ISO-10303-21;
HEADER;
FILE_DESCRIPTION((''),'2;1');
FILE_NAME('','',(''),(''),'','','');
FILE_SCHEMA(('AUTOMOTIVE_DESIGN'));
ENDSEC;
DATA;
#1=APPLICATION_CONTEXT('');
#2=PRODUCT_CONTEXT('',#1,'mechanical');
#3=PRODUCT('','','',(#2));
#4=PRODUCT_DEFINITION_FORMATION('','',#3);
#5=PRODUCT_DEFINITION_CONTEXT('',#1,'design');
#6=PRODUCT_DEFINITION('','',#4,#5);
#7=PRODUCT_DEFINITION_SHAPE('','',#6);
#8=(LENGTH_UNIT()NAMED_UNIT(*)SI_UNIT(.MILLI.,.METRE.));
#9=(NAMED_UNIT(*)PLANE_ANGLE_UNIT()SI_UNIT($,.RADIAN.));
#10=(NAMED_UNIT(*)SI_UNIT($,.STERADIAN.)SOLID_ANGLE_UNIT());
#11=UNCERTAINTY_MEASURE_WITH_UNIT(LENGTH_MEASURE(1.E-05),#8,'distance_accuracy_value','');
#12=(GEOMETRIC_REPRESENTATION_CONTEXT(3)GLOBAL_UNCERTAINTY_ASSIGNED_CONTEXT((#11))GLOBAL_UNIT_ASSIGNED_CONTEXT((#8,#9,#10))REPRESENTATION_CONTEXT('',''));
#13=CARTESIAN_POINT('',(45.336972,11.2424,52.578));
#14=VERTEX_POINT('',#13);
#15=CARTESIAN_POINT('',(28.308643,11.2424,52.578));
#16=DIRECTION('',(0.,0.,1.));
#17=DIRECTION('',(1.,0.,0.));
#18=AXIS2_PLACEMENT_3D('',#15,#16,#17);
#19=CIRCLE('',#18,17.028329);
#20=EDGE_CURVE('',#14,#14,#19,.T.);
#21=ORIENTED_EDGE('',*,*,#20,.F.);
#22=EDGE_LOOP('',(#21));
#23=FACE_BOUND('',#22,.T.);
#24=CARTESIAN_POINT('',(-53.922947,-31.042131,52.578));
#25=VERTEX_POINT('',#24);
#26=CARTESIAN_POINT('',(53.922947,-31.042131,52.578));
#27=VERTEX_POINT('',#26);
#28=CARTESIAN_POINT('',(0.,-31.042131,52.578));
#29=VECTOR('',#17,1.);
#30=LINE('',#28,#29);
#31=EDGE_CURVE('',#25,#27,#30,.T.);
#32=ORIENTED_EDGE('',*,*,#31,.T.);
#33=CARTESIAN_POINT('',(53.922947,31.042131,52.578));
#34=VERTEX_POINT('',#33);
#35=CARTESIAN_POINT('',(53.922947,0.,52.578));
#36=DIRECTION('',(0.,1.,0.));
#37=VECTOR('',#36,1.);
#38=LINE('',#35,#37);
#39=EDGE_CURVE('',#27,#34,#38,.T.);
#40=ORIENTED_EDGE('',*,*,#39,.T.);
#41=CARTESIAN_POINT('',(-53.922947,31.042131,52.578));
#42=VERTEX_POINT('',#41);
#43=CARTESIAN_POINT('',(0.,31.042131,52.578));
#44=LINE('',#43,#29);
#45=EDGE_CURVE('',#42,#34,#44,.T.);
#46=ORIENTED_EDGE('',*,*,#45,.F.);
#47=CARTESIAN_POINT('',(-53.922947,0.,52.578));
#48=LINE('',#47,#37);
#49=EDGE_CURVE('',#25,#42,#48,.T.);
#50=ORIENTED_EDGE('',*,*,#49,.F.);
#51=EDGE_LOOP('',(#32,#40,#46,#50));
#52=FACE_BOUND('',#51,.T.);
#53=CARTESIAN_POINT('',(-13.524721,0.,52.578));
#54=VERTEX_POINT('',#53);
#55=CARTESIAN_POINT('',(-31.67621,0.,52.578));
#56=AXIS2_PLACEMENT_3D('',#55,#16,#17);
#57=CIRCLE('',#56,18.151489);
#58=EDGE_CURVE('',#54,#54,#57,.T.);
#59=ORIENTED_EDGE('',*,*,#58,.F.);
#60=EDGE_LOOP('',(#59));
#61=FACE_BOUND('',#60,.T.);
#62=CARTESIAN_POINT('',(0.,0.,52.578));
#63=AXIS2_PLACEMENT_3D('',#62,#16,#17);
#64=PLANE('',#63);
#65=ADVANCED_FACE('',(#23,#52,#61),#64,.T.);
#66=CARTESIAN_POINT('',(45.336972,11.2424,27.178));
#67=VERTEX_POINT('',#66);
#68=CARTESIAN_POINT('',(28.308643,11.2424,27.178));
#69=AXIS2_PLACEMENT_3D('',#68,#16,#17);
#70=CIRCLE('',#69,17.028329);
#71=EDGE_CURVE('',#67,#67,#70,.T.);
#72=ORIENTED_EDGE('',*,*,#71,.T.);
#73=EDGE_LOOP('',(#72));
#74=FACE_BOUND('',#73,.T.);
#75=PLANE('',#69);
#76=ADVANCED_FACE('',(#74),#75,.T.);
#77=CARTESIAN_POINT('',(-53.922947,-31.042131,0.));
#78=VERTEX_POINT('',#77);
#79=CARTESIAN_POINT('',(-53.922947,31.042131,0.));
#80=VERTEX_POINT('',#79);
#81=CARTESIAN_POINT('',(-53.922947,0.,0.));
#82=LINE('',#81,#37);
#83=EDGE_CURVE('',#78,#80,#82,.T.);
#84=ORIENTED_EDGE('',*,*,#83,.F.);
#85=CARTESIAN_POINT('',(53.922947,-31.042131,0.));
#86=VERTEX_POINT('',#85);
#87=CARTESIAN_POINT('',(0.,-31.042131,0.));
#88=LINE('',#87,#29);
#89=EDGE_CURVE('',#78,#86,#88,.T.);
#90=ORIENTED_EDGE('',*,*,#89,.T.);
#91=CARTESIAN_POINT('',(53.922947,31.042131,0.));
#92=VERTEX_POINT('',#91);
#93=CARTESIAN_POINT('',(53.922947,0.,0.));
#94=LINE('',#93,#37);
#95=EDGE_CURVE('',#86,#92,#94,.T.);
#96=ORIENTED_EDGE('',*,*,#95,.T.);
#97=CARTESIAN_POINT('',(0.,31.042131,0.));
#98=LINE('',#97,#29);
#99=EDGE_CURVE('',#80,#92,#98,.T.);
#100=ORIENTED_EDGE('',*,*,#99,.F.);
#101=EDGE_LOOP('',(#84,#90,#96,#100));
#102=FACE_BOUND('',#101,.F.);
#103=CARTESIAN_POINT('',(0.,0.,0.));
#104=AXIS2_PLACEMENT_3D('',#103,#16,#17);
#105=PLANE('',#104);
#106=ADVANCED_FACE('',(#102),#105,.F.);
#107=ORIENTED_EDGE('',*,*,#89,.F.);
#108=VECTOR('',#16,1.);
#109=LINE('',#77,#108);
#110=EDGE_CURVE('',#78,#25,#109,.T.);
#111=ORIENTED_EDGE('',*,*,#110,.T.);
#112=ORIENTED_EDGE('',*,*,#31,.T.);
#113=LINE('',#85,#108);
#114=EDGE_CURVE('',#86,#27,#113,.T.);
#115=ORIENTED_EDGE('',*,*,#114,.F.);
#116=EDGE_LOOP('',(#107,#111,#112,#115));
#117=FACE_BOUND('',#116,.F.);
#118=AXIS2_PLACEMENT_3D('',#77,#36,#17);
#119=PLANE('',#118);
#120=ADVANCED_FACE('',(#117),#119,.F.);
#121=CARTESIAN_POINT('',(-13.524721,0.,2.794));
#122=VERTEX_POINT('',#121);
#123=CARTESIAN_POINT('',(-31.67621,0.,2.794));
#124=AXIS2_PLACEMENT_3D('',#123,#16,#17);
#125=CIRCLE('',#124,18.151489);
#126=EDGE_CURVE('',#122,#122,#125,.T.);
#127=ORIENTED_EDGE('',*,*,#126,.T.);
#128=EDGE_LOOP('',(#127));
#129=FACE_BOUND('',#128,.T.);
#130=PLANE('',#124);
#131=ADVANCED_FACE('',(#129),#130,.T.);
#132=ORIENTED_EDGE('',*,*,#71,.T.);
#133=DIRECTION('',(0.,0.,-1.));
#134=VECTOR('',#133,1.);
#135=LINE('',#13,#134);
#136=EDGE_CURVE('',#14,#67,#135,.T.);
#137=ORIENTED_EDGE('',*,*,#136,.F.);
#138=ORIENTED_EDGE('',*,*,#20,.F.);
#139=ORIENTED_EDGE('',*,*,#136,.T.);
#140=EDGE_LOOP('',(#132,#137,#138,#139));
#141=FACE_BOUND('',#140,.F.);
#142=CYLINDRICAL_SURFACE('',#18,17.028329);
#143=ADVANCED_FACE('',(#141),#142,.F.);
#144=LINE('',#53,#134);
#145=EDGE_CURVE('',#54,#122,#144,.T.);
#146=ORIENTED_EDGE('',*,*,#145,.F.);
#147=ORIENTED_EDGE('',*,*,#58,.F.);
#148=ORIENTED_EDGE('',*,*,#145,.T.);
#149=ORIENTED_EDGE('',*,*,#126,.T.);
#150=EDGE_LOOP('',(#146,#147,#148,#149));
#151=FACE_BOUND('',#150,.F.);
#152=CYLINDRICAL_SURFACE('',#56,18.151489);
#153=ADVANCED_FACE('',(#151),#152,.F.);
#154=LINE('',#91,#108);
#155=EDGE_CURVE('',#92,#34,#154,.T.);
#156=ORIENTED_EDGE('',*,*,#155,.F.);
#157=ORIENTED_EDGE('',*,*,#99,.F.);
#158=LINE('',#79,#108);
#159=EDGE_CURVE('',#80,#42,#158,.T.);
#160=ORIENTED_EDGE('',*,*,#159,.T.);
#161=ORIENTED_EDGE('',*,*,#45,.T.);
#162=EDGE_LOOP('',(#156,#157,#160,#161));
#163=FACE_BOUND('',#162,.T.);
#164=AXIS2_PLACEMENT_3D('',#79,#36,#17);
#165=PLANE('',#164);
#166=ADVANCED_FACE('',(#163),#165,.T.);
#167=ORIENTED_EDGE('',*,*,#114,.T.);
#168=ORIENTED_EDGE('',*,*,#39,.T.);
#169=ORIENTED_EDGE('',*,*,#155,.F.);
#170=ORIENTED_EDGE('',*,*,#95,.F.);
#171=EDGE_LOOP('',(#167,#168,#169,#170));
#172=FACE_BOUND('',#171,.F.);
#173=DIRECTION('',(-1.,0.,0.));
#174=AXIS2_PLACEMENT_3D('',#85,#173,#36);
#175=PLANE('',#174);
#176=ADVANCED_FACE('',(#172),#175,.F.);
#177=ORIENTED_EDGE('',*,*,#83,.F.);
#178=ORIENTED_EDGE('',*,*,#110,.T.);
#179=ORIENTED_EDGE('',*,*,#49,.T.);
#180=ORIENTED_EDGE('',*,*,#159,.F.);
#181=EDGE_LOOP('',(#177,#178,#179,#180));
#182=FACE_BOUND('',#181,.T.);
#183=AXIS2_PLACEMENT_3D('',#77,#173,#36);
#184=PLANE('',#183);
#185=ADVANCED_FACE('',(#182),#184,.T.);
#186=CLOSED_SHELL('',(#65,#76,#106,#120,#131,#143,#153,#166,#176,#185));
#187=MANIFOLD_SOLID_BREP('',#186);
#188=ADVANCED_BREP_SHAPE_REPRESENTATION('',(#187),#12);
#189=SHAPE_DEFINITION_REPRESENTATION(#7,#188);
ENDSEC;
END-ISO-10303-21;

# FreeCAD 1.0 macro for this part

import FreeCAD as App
import Part
import Sketcher
from FreeCAD import Vector
Q = App.Units.Quantity

doc = App.newDocument("Part")
body = doc.addObject("PartDesign::Body", "Body")

sketch1 = body.newObject("Sketcher::SketchObject", "Sketch")
sketch1.AttachmentSupport = (doc.getObject("XY_Plane"), [""])
sketch1.MapMode = "FlatFace"
sketch1.addGeometry(Part.LineSegment(Vector(-53.922947, 31.042131, 0), Vector(-53.922947, -31.042131, 0)), False)
sketch1.addGeometry(Part.LineSegment(Vector(-53.922947, -31.042131, 0), Vector(53.922947, -31.042131, 0)), False)
sketch1.addGeometry(Part.LineSegment(Vector(53.922947, -31.042131, 0), Vector(53.922947, 31.042131, 0)), False)
sketch1.addGeometry(Part.LineSegment(Vector(53.922947, 31.042131, 0), Vector(-53.922947, 31.042131, 0)), False)
sketch1.addConstraint(Sketcher.Constraint("Coincident", 0, 2, 1, 1))
sketch1.addConstraint(Sketcher.Constraint("Coincident", 1, 2, 2, 1))
sketch1.addConstraint(Sketcher.Constraint("Coincident", 2, 2, 3, 1))
sketch1.addConstraint(Sketcher.Constraint("Coincident", 3, 2, 0, 1))
sketch1.addConstraint(Sketcher.Constraint("Vertical", 0))
sketch1.addConstraint(Sketcher.Constraint("Horizontal", 1))
sketch1.addConstraint(Sketcher.Constraint("Vertical", 2))
sketch1.addConstraint(Sketcher.Constraint("Horizontal", 3))
sketch1.addConstraint(Sketcher.Constraint("Symmetric", 0, 2, 2, 2, -1, 1))
sketch1.addConstraint(Sketcher.Constraint("DistanceX", 1, 1, 1, 2, Q("107.845894 mm")))
sketch1.addConstraint(Sketcher.Constraint("DistanceY", 0, 2, 0, 1, Q("62.084262 mm")))
pad1 = body.newObject("PartDesign::Pad", "Pad")
pad1.Profile = sketch1
pad1.Length = Q("2.07 in")

sketch2 = body.newObject("Sketcher::SketchObject", "Sketch001")
sketch2.AttachmentSupport = (doc.getObject("XY_Plane"), [""])
sketch2.MapMode = "FlatFace"
sketch2.AttachmentOffset = App.Placement(Vector(0, 0, 2.07 * 25.4), App.Rotation())
sketch2.addGeometry(Part.Circle(Vector(-31.67621, 0, 0), Vector(0, 0, 1), 18.151489), False)
sketch2.addConstraint(Sketcher.Constraint("PointOnObject", 0, 3, -1))
sketch2.addConstraint(Sketcher.Constraint("Diameter", 0, Q("36.302978 mm")))
sketch2.addConstraint(Sketcher.Constraint("DistanceX", 0, 3, -1, 1, Q("31.67621 mm")))
pocket1 = body.newObject("PartDesign::Pocket", "Pocket")
pocket1.Profile = sketch2
pocket1.Length = Q("1.96 in")

sketch3 = body.newObject("Sketcher::SketchObject", "Sketch002")
sketch3.AttachmentSupport = (doc.getObject("XY_Plane"), [""])
sketch3.MapMode = "FlatFace"
sketch3.AttachmentOffset = App.Placement(Vector(0, 0, 2.07 * 25.4), App.Rotation())
sketch3.addGeometry(Part.Circle(Vector(28.308643, 11.2424, 0), Vector(0, 0, 1), 17.028329), False)
sketch3.addConstraint(Sketcher.Constraint("Diameter", 0, Q("34.056658 mm")))
sketch3.addConstraint(Sketcher.Constraint("DistanceY", -1, 1, 0, 3, Q("11.2424 mm")))
sketch3.addConstraint(Sketcher.Constraint("DistanceX", -1, 1, 0, 3, Q("28.308643 mm")))
pocket2 = body.newObject("PartDesign::Pocket", "Pocket001")
pocket2.Profile = sketch3
pocket2.Length = Q("1 in")

doc.recompute()
